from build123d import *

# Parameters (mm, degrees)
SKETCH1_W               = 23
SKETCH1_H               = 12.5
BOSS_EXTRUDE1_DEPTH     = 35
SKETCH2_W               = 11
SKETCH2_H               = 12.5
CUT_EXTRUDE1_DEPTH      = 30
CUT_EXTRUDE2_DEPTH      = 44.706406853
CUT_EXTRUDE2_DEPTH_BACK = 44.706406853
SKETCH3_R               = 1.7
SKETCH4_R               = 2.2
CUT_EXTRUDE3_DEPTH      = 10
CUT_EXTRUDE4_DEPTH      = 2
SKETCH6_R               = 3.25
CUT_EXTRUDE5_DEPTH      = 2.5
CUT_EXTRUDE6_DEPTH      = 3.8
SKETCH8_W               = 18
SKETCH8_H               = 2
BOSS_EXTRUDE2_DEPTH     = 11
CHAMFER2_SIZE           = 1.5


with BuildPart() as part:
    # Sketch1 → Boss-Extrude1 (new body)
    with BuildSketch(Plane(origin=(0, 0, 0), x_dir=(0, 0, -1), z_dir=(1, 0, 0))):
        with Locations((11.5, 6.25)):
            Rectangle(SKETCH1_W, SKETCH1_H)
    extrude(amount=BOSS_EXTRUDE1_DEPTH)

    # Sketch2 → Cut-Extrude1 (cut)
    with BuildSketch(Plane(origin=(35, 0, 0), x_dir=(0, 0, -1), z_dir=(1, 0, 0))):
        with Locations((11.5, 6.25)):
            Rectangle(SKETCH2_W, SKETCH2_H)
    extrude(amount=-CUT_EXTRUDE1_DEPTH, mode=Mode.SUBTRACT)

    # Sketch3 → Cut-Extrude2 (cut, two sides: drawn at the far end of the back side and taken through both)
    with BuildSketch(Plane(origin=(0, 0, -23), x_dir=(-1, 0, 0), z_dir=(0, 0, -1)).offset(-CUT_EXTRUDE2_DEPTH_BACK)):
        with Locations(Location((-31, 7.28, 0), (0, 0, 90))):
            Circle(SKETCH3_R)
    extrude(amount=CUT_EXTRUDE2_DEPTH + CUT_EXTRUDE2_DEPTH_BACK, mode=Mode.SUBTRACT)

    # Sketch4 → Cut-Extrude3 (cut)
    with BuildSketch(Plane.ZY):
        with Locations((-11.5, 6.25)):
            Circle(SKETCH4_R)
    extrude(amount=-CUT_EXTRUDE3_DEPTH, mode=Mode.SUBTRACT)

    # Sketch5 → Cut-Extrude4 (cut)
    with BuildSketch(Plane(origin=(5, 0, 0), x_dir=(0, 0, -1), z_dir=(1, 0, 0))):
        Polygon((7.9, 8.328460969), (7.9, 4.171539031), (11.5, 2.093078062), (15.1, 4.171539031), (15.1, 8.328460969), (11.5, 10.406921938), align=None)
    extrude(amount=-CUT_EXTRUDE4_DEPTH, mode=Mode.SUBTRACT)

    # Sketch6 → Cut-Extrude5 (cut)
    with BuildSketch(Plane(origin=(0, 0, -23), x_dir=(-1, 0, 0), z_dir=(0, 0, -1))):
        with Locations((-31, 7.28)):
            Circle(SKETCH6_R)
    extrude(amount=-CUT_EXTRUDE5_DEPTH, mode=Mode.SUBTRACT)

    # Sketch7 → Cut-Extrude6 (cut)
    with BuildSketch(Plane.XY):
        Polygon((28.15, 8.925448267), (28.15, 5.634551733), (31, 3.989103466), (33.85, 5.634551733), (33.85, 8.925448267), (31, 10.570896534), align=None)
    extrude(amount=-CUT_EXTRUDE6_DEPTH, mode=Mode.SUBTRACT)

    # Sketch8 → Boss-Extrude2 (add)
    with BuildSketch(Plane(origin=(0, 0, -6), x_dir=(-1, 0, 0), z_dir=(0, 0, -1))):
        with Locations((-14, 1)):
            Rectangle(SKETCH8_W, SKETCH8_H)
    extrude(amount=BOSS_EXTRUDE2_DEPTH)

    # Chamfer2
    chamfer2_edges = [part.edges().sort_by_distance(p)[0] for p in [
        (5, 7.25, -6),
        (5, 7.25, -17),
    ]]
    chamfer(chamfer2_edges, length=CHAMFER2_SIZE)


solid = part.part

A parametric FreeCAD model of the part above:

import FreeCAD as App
import Part
import Sketcher
from FreeCAD import Vector
Q = App.Units.Quantity


def edges_at(feature, points):
    """Names of the edges that pass closest to the given points."""
    edges = feature.Shape.Edges
    near = lambda p: min(range(len(edges)), key=lambda i: edges[i].distToShape(Part.Vertex(*p))[0])
    return sorted({f"Edge{near(p) + 1}" for p in points})


def add_polygon(sketch, points):
    """Adds a closed chain of lines whose ends are joined by coincident constraints."""
    first, n = sketch.GeometryCount, len(points)
    for a, b in zip(points, points[1:] + points[:1]):
        sketch.addGeometry(Part.LineSegment(App.Vector(*a, 0), App.Vector(*b, 0)), False)
    for i in range(n):
        sketch.addConstraint(Sketcher.Constraint("Coincident", first + i, 2, first + (i + 1) % n, 1))

doc = App.newDocument("Part")
params = doc.addObject("Spreadsheet::Sheet", "Params")
for row, (alias, value) in enumerate([
    ("sketch1_height", "23 mm"),
    ("sketch1_width", "12.5 mm"),
    ("pad1_length", "35 mm"),
    ("sketch2_height", "11 mm"),
    ("sketch2_width", "12.5 mm"),
    ("pocket1_length", "30 mm"),
    ("sketch3_diameter", "3.4 mm"),
    ("sketch4_diameter", "4.4 mm"),
    ("pocket3_length", "10 mm"),
    ("pocket4_length", "2 mm"),
    ("sketch6_diameter", "6.5 mm"),
    ("pocket5_length", "2.5 mm"),
    ("pocket6_length", "3.8 mm"),
    ("sketch8_width", "18 mm"),
    ("sketch8_height", "2 mm"),
    ("pad2_length", "11 mm"),
    ("chamfer_size", "1.5 mm"),
], start=1):
    params.set(f"A{row}", alias)
    params.set(f"B{row}", "=" + value)
    params.setAlias(f"B{row}", alias)

body = doc.addObject("PartDesign::Body", "Body")

sketch1 = doc.addObject("Sketcher::SketchObject", "Sketch")
body.addObject(sketch1)
sketch1.AttachmentSupport = (doc.YZ_Plane, [""])
sketch1.MapMode = "FlatFace"
add_polygon(sketch1, [(12.5, 0), (0, 0), (0, -23), (12.5, -23)])
sketch1.addConstraint([
    Sketcher.Constraint("Horizontal", 0),
    Sketcher.Constraint("Vertical", 1),
    Sketcher.Constraint("Horizontal", 2),
    Sketcher.Constraint("Vertical", 3),
    Sketcher.Constraint("Coincident", 0, 2, -1, 1),
    Sketcher.Constraint("DistanceY", 1, 2, 1, 1, Q("23 mm")),
    Sketcher.Constraint("DistanceX", 0, 2, 0, 1, Q("12.5 mm")),
])
sketch1.setExpression("Constraints[9]", "Params.sketch1_height")
sketch1.setExpression("Constraints[10]", "Params.sketch1_width")
pad1 = doc.addObject("PartDesign::Pad", "Pad")
body.addObject(pad1)
pad1.Profile = sketch1
pad1.setExpression("Length", "Params.pad1_length")

sketch2 = doc.addObject("Sketcher::SketchObject", "Sketch001")
body.addObject(sketch2)
sketch2.AttachmentSupport = (doc.YZ_Plane, [""])
sketch2.MapMode = "FlatFace"
sketch2.AttachmentOffset = App.Placement(Vector(0, 0, 35), App.Rotation())
add_polygon(sketch2, [(12.5, -6), (0, -6), (0, -17), (12.5, -17)])
sketch2.addConstraint([
    Sketcher.Constraint("Horizontal", 0),
    Sketcher.Constraint("Vertical", 1),
    Sketcher.Constraint("Horizontal", 2),
    Sketcher.Constraint("Vertical", 3),
    Sketcher.Constraint("PointOnObject", 0, 2, -2),
    Sketcher.Constraint("DistanceY", 1, 2, 1, 1, Q("11 mm")),
    Sketcher.Constraint("DistanceX", 0, 2, 0, 1, Q("12.5 mm")),
    Sketcher.Constraint("DistanceY", 0, 2, -1, 1, Q("6 mm")),
])
sketch2.setExpression("Constraints[9]", "Params.sketch2_height")
sketch2.setExpression("Constraints[10]", "Params.sketch2_width")
pocket1 = doc.addObject("PartDesign::Pocket", "Pocket")
body.addObject(pocket1)
pocket1.Profile = sketch2
pocket1.setExpression("Length", "Params.pocket1_length")

sketch3 = doc.addObject("Sketcher::SketchObject", "Sketch002")
body.addObject(sketch3)
sketch3.AttachmentSupport = (doc.XY_Plane, [""])
sketch3.MapMode = "FlatFace"
sketch3.AttachmentOffset = App.Placement(Vector(0, 0, -23), App.Rotation())
sketch3.addGeometry(Part.Circle(Vector(31, 7.28, 0), Vector(0, 0, 1), 1.7), False)
sketch3.addConstraint([
    Sketcher.Constraint("Diameter", 0, Q("3.4 mm")),
    Sketcher.Constraint("DistanceX", -1, 1, 0, 3, Q("31 mm")),
    Sketcher.Constraint("DistanceY", -1, 1, 0, 3, Q("7.28 mm")),
])
sketch3.setExpression("Constraints[0]", "Params.sketch3_diameter")
pocket2 = doc.addObject("PartDesign::Pocket", "Pocket001")
body.addObject(pocket2)
pocket2.Profile = sketch3
pocket2.Type = "ThroughAll"
pocket2.Midplane = True

sketch4 = doc.addObject("Sketcher::SketchObject", "Sketch003")
body.addObject(sketch4)
sketch4.AttachmentSupport = (doc.YZ_Plane, [""])
sketch4.MapMode = "FlatFace"
sketch4.addGeometry(Part.Circle(Vector(6.25, -11.5, 0), Vector(0, 0, 1), 2.2), False)
sketch4.addConstraint([
    Sketcher.Constraint("Diameter", 0, Q("4.4 mm")),
    Sketcher.Constraint("DistanceY", 0, 3, -1, 1, Q("11.5 mm")),
    Sketcher.Constraint("DistanceX", -1, 1, 0, 3, Q("6.25 mm")),
])
sketch4.setExpression("Constraints[0]", "Params.sketch4_diameter")
pocket3 = doc.addObject("PartDesign::Pocket", "Pocket002")
body.addObject(pocket3)
pocket3.Profile = sketch4
pocket3.setExpression("Length", "Params.pocket3_length")
pocket3.Reversed = True

sketch5 = doc.addObject("Sketcher::SketchObject", "Sketch004")
body.addObject(sketch5)
sketch5.AttachmentSupport = (doc.YZ_Plane, [""])
sketch5.MapMode = "FlatFace"
sketch5.AttachmentOffset = App.Placement(Vector(0, 0, 5), App.Rotation())
add_polygon(sketch5, [(8.328461, -7.9), (4.171539, -7.9), (2.093078, -11.5), (4.171539, -15.1), (8.328461, -15.1), (10.406922, -11.5)])
sketch5.addConstraint([
    Sketcher.Constraint("Horizontal", 0),
    Sketcher.Constraint("Horizontal", 3),
    Sketcher.Constraint("Parallel", 1, 4),
    Sketcher.Constraint("Parallel", 2, 5),
    Sketcher.Constraint("Horizontal", 1, 2, 4, 2),
    Sketcher.Constraint("Vertical", 0, 2, 2, 2),
    Sketcher.Constraint("Vertical", 3, 2, 5, 2),
    Sketcher.Constraint("Angle", 1, Q("-120 deg")),
    Sketcher.Constraint("DistanceY", 0, 2, -1, 1, Q("7.9 mm")),
    Sketcher.Constraint("DistanceY", 1, 2, -1, 1, Q("11.5 mm")),
    Sketcher.Constraint("DistanceX", 0, 2, 0, 1, Q("4.156922 mm")),
    Sketcher.Constraint("DistanceX", -1, 1, 0, 2, Q("4.171539 mm")),
])
pocket4 = doc.addObject("PartDesign::Pocket", "Pocket003")
body.addObject(pocket4)
pocket4.Profile = sketch5
pocket4.setExpression("Length", "Params.pocket4_length")

sketch6 = doc.addObject("Sketcher::SketchObject", "Sketch005")
body.addObject(sketch6)
sketch6.AttachmentSupport = (doc.XY_Plane, [""])
sketch6.MapMode = "FlatFace"
sketch6.AttachmentOffset = App.Placement(Vector(0, 0, -23), App.Rotation())
sketch6.addGeometry(Part.Circle(Vector(31, 7.28, 0), Vector(0, 0, 1), 3.25), False)
sketch6.addConstraint([
    Sketcher.Constraint("Diameter", 0, Q("6.5 mm")),
    Sketcher.Constraint("DistanceX", -1, 1, 0, 3, Q("31 mm")),
    Sketcher.Constraint("DistanceY", -1, 1, 0, 3, Q("7.28 mm")),
])
sketch6.setExpression("Constraints[0]", "Params.sketch6_diameter")
pocket5 = doc.addObject("PartDesign::Pocket", "Pocket004")
body.addObject(pocket5)
pocket5.Profile = sketch6
pocket5.setExpression("Length", "Params.pocket5_length")
pocket5.Reversed = True

sketch7 = doc.addObject("Sketcher::SketchObject", "Sketch006")
body.addObject(sketch7)
sketch7.AttachmentSupport = (doc.XY_Plane, [""])
sketch7.MapMode = "FlatFace"
add_polygon(sketch7, [(28.15, 8.925448), (28.15, 5.634552), (31, 3.989103), (33.85, 5.634552), (33.85, 8.925448), (31, 10.570897)])
sketch7.addConstraint([
    Sketcher.Constraint("Vertical", 0),
    Sketcher.Constraint("Vertical", 3),
    Sketcher.Constraint("Parallel", 1, 4),
    Sketcher.Constraint("Parallel", 2, 5),
    Sketcher.Constraint("Horizontal", 0, 2, 2, 2),
    Sketcher.Constraint("Horizontal", 3, 2, 5, 2),
    Sketcher.Constraint("Vertical", 1, 2, 4, 2),
    Sketcher.Constraint("Angle", 1, Q("-30 deg")),
    Sketcher.Constraint("DistanceX", -1, 1, 1, 2, Q("31 mm")),
    Sketcher.Constraint("DistanceX", 0, 2, 2, 2, Q("5.7 mm")),
    Sketcher.Constraint("DistanceY", 0, 2, 0, 1, Q("3.290897 mm")),
    Sketcher.Constraint("DistanceY", -1, 1, 0, 2, Q("5.634552 mm")),
])
pocket6 = doc.addObject("PartDesign::Pocket", "Pocket005")
body.addObject(pocket6)
pocket6.Profile = sketch7
pocket6.setExpression("Length", "Params.pocket6_length")

sketch8 = doc.addObject("Sketcher::SketchObject", "Sketch007")
body.addObject(sketch8)
sketch8.AttachmentSupport = (doc.XY_Plane, [""])
sketch8.MapMode = "FlatFace"
sketch8.AttachmentOffset = App.Placement(Vector(0, 0, -6), App.Rotation())
add_polygon(sketch8, [(23, 2), (23, 0), (5, 0), (5, 2)])
sketch8.addConstraint([
    Sketcher.Constraint("Vertical", 0),
    Sketcher.Constraint("Horizontal", 1),
    Sketcher.Constraint("Vertical", 2),
    Sketcher.Constraint("Horizontal", 3),
    Sketcher.Constraint("PointOnObject", 0, 2, -1),
    Sketcher.Constraint("DistanceX", 1, 2, 1, 1, Q("18 mm")),
    Sketcher.Constraint("DistanceY", 0, 2, 0, 1, Q("2 mm")),
    Sketcher.Constraint("DistanceX", -1, 1, 0, 2, Q("23 mm")),
])
sketch8.setExpression("Constraints[9]", "Params.sketch8_width")
sketch8.setExpression("Constraints[10]", "Params.sketch8_height")
pad2 = doc.addObject("PartDesign::Pad", "Pad001")
body.addObject(pad2)
pad2.Profile = sketch8
pad2.setExpression("Length", "Params.pad2_length")
pad2.Reversed = True
doc.recompute()

chamfer = doc.addObject("PartDesign::Chamfer", "Chamfer")
body.addObject(chamfer)
chamfer.Base = (pad2, edges_at(pad2, [(5, 7.25, -6), (5, 7.25, -17)]))
chamfer.setExpression("Size", "Params.chamfer_size")

doc.recompute()
